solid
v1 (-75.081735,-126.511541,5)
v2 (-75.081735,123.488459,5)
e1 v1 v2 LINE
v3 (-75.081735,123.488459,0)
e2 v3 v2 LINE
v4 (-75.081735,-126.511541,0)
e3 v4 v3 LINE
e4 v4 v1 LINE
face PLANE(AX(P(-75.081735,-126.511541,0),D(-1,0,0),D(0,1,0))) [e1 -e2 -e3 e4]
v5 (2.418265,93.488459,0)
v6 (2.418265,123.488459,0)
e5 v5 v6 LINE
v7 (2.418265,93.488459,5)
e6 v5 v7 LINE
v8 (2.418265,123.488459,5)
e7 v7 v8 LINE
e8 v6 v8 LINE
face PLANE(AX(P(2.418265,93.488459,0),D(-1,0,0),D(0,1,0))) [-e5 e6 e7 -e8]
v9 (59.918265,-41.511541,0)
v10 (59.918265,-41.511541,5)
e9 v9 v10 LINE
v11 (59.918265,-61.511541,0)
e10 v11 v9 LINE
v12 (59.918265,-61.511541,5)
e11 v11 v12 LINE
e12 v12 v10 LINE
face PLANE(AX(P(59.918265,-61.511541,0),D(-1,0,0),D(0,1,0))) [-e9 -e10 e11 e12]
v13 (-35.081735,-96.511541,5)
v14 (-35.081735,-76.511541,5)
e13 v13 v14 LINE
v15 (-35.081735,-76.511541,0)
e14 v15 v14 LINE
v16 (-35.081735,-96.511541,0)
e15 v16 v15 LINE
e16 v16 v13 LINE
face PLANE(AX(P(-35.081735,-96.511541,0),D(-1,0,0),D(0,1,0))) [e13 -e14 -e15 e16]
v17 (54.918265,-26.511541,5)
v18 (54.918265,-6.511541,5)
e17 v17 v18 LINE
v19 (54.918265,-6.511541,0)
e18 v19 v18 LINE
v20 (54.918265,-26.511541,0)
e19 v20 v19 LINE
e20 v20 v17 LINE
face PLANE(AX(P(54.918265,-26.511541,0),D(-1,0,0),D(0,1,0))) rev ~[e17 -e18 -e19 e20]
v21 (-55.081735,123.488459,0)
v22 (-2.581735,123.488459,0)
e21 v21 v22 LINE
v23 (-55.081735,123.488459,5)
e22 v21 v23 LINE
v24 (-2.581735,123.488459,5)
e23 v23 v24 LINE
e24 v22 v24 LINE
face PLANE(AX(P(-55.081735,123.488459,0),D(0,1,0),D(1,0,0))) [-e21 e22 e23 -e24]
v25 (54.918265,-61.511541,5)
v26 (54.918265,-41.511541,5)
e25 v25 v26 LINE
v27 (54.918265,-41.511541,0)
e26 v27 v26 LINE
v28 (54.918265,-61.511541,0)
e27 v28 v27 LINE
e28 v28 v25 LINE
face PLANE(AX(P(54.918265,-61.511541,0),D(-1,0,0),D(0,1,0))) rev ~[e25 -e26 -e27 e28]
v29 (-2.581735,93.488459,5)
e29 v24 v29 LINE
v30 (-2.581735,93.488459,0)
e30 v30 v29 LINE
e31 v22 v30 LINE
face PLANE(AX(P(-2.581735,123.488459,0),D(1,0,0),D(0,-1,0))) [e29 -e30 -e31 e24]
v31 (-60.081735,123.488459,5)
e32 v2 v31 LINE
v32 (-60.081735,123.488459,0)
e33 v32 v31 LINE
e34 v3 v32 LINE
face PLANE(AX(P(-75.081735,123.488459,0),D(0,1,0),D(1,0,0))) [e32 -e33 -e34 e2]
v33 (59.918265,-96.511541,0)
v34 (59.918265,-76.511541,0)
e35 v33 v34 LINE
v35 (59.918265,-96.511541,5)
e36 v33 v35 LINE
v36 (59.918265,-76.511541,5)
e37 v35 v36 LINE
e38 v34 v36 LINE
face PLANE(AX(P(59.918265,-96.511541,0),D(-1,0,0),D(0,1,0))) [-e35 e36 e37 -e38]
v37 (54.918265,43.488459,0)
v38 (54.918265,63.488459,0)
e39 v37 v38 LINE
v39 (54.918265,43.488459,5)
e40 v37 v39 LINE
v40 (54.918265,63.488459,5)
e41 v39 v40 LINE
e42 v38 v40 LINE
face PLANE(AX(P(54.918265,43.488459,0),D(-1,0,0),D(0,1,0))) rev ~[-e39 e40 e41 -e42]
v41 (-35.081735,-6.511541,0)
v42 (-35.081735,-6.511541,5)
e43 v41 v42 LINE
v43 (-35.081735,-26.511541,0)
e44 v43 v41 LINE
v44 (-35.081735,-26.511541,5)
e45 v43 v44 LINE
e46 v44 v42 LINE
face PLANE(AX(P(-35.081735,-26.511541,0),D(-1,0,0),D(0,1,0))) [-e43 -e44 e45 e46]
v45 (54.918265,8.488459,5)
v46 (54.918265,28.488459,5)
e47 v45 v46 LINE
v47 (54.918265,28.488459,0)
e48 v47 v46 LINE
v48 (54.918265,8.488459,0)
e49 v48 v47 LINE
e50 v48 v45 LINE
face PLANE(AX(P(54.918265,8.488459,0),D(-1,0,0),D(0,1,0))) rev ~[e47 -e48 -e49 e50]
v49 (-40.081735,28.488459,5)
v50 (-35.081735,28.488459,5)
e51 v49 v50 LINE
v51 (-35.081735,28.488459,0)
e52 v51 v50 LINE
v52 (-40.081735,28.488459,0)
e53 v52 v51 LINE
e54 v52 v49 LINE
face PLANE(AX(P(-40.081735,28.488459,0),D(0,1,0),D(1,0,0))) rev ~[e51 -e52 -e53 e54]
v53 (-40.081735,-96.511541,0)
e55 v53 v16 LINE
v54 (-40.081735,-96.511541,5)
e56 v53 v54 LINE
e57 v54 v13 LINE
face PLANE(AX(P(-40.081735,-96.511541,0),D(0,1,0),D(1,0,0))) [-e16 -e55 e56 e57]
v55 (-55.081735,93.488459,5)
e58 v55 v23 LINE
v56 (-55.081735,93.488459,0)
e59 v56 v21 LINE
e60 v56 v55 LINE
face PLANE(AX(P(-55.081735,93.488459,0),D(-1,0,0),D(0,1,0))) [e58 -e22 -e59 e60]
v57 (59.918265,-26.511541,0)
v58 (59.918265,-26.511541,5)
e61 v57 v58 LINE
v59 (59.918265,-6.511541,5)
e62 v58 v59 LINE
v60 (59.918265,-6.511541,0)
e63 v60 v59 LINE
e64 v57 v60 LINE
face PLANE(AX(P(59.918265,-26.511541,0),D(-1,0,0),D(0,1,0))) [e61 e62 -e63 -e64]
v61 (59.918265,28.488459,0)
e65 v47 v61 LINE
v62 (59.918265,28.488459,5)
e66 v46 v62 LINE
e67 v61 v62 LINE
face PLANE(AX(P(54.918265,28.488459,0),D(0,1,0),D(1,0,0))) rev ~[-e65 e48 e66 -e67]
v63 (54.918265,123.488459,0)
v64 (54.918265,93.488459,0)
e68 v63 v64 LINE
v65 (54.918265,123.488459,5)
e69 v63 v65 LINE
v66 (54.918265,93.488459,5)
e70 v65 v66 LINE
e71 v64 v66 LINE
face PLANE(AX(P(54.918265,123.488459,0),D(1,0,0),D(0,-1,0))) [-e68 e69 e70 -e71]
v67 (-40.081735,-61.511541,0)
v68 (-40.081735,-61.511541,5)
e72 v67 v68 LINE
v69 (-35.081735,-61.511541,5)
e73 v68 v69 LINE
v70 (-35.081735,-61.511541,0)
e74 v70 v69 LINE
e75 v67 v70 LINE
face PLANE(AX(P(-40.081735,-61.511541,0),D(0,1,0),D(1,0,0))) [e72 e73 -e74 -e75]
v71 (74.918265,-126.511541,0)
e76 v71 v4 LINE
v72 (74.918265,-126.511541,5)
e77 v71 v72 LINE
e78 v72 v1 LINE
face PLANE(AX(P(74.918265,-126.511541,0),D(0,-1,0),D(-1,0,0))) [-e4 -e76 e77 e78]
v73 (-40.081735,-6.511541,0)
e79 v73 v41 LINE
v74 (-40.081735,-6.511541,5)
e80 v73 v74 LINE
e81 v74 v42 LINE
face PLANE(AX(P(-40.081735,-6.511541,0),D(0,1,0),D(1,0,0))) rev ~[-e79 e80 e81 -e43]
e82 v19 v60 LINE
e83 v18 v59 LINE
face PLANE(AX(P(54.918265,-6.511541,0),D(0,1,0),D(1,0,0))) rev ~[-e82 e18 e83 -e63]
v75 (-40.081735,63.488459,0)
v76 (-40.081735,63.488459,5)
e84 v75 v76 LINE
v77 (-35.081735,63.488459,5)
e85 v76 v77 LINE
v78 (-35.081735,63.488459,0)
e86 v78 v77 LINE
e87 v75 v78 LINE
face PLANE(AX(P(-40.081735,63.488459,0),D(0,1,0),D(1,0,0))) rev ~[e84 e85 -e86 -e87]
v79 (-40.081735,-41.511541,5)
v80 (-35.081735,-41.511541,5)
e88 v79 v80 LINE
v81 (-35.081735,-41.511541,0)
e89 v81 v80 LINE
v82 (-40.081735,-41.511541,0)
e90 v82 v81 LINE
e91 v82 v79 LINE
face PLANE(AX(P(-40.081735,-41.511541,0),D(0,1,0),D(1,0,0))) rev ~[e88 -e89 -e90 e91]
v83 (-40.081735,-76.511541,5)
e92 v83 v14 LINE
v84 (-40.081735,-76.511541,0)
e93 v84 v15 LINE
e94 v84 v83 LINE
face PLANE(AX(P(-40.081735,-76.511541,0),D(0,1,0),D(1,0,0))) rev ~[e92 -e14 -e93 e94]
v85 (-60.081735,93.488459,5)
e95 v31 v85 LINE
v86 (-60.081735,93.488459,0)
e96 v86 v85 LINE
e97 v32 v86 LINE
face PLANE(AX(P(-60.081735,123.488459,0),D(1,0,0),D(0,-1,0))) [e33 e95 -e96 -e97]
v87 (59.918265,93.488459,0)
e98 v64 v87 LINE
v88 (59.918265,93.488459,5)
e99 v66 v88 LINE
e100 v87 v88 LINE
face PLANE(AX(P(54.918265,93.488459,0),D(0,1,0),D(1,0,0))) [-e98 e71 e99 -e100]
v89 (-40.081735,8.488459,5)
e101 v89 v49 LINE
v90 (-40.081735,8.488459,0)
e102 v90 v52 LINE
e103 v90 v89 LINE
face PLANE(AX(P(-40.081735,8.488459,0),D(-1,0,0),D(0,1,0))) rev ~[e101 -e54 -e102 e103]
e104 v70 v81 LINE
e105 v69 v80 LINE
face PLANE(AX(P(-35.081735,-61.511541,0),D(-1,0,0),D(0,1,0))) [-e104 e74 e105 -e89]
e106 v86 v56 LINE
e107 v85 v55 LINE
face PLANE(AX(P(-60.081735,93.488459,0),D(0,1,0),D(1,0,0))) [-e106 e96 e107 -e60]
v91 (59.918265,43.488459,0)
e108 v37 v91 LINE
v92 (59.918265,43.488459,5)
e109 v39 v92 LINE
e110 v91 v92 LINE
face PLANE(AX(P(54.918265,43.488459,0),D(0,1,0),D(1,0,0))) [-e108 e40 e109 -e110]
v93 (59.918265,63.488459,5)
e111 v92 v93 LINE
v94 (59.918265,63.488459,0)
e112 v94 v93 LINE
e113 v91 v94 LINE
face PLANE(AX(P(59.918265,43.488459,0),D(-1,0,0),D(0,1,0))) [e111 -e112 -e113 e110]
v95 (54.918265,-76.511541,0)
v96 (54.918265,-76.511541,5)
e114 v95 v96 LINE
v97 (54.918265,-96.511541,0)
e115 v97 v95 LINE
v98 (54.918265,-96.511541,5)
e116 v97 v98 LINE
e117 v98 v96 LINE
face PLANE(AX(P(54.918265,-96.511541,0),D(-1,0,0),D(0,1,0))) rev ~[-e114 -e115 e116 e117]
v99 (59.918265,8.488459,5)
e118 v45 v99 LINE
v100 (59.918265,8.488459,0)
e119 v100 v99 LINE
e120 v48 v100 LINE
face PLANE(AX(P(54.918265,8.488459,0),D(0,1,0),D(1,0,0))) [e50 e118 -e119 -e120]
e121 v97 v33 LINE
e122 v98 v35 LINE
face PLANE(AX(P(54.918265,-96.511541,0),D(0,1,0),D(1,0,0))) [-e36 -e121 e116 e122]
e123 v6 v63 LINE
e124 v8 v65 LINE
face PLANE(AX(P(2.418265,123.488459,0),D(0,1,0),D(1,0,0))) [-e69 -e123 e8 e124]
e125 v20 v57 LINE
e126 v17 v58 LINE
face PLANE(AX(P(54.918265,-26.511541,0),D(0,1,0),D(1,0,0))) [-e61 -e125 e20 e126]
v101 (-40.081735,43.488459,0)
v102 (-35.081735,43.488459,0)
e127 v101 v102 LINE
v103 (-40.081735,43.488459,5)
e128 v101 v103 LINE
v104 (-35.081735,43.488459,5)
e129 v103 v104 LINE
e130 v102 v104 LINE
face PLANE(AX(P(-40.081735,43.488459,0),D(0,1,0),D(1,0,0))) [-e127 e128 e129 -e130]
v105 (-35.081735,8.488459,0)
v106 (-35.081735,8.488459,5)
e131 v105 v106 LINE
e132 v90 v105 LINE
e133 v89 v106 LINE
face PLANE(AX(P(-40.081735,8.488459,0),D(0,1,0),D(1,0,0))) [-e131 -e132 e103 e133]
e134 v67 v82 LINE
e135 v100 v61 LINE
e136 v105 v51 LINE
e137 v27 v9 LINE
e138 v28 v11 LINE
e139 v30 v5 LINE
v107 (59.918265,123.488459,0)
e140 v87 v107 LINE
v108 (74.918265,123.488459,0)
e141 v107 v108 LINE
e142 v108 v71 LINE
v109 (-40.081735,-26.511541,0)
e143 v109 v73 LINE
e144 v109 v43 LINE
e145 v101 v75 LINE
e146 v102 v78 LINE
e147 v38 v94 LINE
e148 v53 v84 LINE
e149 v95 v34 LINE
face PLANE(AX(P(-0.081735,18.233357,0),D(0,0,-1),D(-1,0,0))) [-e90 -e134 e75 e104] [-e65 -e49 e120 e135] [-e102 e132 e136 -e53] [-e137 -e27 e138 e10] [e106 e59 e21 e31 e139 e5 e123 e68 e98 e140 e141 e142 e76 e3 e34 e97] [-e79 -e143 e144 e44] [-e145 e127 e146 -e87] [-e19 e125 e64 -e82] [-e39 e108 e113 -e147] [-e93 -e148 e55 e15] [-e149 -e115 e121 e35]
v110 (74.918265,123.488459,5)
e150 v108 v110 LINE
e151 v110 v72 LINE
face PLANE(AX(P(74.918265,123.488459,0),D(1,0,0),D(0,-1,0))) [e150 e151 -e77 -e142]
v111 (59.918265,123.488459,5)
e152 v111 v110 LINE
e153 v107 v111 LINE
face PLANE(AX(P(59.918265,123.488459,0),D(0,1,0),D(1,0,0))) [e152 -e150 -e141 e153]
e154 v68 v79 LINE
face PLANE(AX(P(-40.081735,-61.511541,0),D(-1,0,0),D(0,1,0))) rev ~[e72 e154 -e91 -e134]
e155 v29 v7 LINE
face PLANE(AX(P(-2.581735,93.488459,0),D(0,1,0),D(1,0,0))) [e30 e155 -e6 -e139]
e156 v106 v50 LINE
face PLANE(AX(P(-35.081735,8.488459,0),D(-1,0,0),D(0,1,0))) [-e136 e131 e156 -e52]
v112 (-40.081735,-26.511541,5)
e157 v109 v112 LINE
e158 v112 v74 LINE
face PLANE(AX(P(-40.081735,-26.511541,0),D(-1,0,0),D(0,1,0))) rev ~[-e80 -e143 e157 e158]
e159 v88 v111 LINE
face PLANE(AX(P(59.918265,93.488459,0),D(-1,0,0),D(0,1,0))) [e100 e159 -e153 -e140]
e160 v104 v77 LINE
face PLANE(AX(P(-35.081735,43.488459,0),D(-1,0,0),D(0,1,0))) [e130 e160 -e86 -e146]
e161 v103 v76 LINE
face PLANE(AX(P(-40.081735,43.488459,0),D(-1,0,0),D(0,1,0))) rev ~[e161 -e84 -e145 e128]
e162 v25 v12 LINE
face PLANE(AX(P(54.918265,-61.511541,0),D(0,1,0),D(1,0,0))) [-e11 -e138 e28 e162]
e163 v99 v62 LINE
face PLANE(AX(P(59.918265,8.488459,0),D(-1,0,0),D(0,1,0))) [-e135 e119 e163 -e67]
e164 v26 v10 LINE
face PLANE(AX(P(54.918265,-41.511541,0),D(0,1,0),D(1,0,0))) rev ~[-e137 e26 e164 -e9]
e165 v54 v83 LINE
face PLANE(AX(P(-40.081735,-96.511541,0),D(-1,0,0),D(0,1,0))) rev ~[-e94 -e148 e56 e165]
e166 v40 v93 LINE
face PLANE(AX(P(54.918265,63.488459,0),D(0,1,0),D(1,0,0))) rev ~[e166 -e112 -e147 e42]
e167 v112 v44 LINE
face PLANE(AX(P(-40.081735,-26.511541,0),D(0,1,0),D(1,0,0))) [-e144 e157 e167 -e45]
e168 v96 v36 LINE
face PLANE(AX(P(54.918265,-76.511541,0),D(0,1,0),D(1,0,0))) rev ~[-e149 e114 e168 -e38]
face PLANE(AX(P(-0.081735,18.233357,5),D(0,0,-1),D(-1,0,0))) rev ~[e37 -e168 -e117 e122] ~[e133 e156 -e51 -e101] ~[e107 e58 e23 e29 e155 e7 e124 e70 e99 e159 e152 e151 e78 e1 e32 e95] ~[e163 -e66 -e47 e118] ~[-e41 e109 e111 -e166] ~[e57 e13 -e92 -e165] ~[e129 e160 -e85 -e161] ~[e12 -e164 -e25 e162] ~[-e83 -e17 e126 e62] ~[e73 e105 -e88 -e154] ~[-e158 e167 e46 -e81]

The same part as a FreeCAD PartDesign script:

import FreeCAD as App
import Part
import Sketcher

V = App.Vector


def add_polygon(sketch, points):
    """Adds a closed chain of lines whose ends are joined by coincident constraints."""
    first, n = sketch.GeometryCount, len(points)
    for a, b in zip(points, points[1:] + points[:1]):
        sketch.addGeometry(Part.LineSegment(App.Vector(*a, 0), App.Vector(*b, 0)), False)
    for i in range(n):
        sketch.addConstraint(Sketcher.Constraint("Coincident", first + i, 2, first + (i + 1) % n, 1))

doc = App.newDocument("Part")
body = doc.addObject("PartDesign::Body", "Body")

sketch1 = body.newObject("Sketcher::SketchObject", "Sketch")
sketch1.AttachmentSupport = (doc.getObject("XY_Plane"), [""])
sketch1.MapMode = "FlatFace"
add_polygon(sketch1, [(75, -127), (75, 123), (60, 123), (60, 93), (55, 93), (55, 123), (2, 123), (2, 93), (-3, 93), (-3, 123), (-55, 123), (-55, 93), (-60, 93), (-60, 123), (-75, 123), (-75, -127)])
add_polygon(sketch1, [(55, -97), (55, -77), (60, -77), (60, -97)])
add_polygon(sketch1, [(55, -62), (55, -42), (60, -42), (60, -62)])
add_polygon(sketch1, [(55, -27), (55, -7), (60, -7), (60, -27)])
add_polygon(sketch1, [(-40, -97), (-40, -77), (-35, -77), (-35, -97)])
add_polygon(sketch1, [(-40, -62), (-40, -42), (-35, -42), (-35, -62)])
add_polygon(sketch1, [(-40, -27), (-40, -7), (-35, -7), (-35, -27)])
add_polygon(sketch1, [(55, 8), (55, 28), (60, 28), (60, 8)])
add_polygon(sketch1, [(55, 43), (55, 63), (60, 63), (60, 43)])
add_polygon(sketch1, [(-40, 8), (-40, 28), (-35, 28), (-35, 8)])
add_polygon(sketch1, [(-40, 43), (-40, 63), (-35, 63), (-35, 43)])
sketch1.addConstraint(Sketcher.Constraint("Vertical", 0))
sketch1.addConstraint(Sketcher.Constraint("Horizontal", 1))
sketch1.addConstraint(Sketcher.Constraint("Vertical", 2))
sketch1.addConstraint(Sketcher.Constraint("Horizontal", 3))
sketch1.addConstraint(Sketcher.Constraint("Vertical", 4))
sketch1.addConstraint(Sketcher.Constraint("Horizontal", 5))
sketch1.addConstraint(Sketcher.Constraint("Vertical", 6))
sketch1.addConstraint(Sketcher.Constraint("Horizontal", 7))
sketch1.addConstraint(Sketcher.Constraint("Vertical", 8))
sketch1.addConstraint(Sketcher.Constraint("Horizontal", 9))
sketch1.addConstraint(Sketcher.Constraint("Vertical", 10))
sketch1.addConstraint(Sketcher.Constraint("Horizontal", 11))
sketch1.addConstraint(Sketcher.Constraint("Vertical", 12))
sketch1.addConstraint(Sketcher.Constraint("Horizontal", 13))
sketch1.addConstraint(Sketcher.Constraint("Vertical", 14))
sketch1.addConstraint(Sketcher.Constraint("Horizontal", 15))
sketch1.addConstraint(Sketcher.Constraint("Vertical", 16))
sketch1.addConstraint(Sketcher.Constraint("Horizontal", 17))
sketch1.addConstraint(Sketcher.Constraint("Vertical", 18))
sketch1.addConstraint(Sketcher.Constraint("Horizontal", 19))
sketch1.addConstraint(Sketcher.Constraint("Vertical", 20))
sketch1.addConstraint(Sketcher.Constraint("Horizontal", 21))
sketch1.addConstraint(Sketcher.Constraint("Vertical", 22))
sketch1.addConstraint(Sketcher.Constraint("Horizontal", 23))
sketch1.addConstraint(Sketcher.Constraint("Vertical", 24))
sketch1.addConstraint(Sketcher.Constraint("Horizontal", 25))
sketch1.addConstraint(Sketcher.Constraint("Vertical", 26))
sketch1.addConstraint(Sketcher.Constraint("Horizontal", 27))
sketch1.addConstraint(Sketcher.Constraint("Vertical", 28))
sketch1.addConstraint(Sketcher.Constraint("Horizontal", 29))
sketch1.addConstraint(Sketcher.Constraint("Vertical", 30))
sketch1.addConstraint(Sketcher.Constraint("Horizontal", 31))
sketch1.addConstraint(Sketcher.Constraint("Vertical", 32))
sketch1.addConstraint(Sketcher.Constraint("Horizontal", 33))
sketch1.addConstraint(Sketcher.Constraint("Vertical", 34))
sketch1.addConstraint(Sketcher.Constraint("Horizontal", 35))
sketch1.addConstraint(Sketcher.Constraint("Vertical", 36))
sketch1.addConstraint(Sketcher.Constraint("Horizontal", 37))
sketch1.addConstraint(Sketcher.Constraint("Vertical", 38))
sketch1.addConstraint(Sketcher.Constraint("Horizontal", 39))
sketch1.addConstraint(Sketcher.Constraint("Vertical", 40))
sketch1.addConstraint(Sketcher.Constraint("Horizontal", 41))
sketch1.addConstraint(Sketcher.Constraint("Vertical", 42))
sketch1.addConstraint(Sketcher.Constraint("Horizontal", 43))
sketch1.addConstraint(Sketcher.Constraint("Vertical", 44))
sketch1.addConstraint(Sketcher.Constraint("Horizontal", 45))
sketch1.addConstraint(Sketcher.Constraint("Vertical", 46))
sketch1.addConstraint(Sketcher.Constraint("Horizontal", 47))
sketch1.addConstraint(Sketcher.Constraint("Vertical", 48))
sketch1.addConstraint(Sketcher.Constraint("Horizontal", 49))
sketch1.addConstraint(Sketcher.Constraint("Vertical", 50))
sketch1.addConstraint(Sketcher.Constraint("Horizontal", 51))
sketch1.addConstraint(Sketcher.Constraint("Vertical", 52))
sketch1.addConstraint(Sketcher.Constraint("Horizontal", 53))
sketch1.addConstraint(Sketcher.Constraint("Vertical", 54))
sketch1.addConstraint(Sketcher.Constraint("Horizontal", 55))
sketch1.addConstraint(Sketcher.Constraint("Horizontal", 1, 2, 4, 2))
sketch1.addConstraint(Sketcher.Constraint("Horizontal", 3, 2, 6, 2))
sketch1.addConstraint(Sketcher.Constraint("Horizontal", 5, 2, 8, 2))
sketch1.addConstraint(Sketcher.Constraint("Horizontal", 7, 2, 10, 2))
sketch1.addConstraint(Sketcher.Constraint("Horizontal", 9, 2, 12, 2))
sketch1.addConstraint(Sketcher.Constraint("Horizontal", 17, 2, 28, 2))
sketch1.addConstraint(Sketcher.Constraint("Horizontal", 19, 2, 30, 2))
sketch1.addConstraint(Sketcher.Constraint("Horizontal", 21, 2, 32, 2))
sketch1.addConstraint(Sketcher.Constraint("Horizontal", 23, 2, 34, 2))
sketch1.addConstraint(Sketcher.Constraint("Horizontal", 25, 2, 36, 2))
sketch1.addConstraint(Sketcher.Constraint("Horizontal", 27, 2, 38, 2))
sketch1.addConstraint(Sketcher.Constraint("Horizontal", 41, 2, 48, 2))
sketch1.addConstraint(Sketcher.Constraint("Horizontal", 43, 2, 50, 2))
sketch1.addConstraint(Sketcher.Constraint("Horizontal", 45, 2, 52, 2))
sketch1.addConstraint(Sketcher.Constraint("Horizontal", 47, 2, 54, 2))
sketch1.addConstraint(Sketcher.Constraint("Vertical", 4, 2, 16, 2))
sketch1.addConstraint(Sketcher.Constraint("Vertical", 2, 2, 17, 2))
sketch1.addConstraint(Sketcher.Constraint("Vertical", 19, 2, 20, 2))
sketch1.addConstraint(Sketcher.Constraint("Vertical", 18, 2, 21, 2))
sketch1.addConstraint(Sketcher.Constraint("Vertical", 23, 2, 24, 2))
sketch1.addConstraint(Sketcher.Constraint("Vertical", 22, 2, 25, 2))
sketch1.addConstraint(Sketcher.Constraint("Vertical", 31, 2, 32, 2))
sketch1.addConstraint(Sketcher.Constraint("Vertical", 30, 2, 33, 2))
sketch1.addConstraint(Sketcher.Constraint("Vertical", 35, 2, 36, 2))
sketch1.addConstraint(Sketcher.Constraint("Vertical", 34, 2, 37, 2))
sketch1.addConstraint(Sketcher.Constraint("Vertical", 27, 2, 40, 2))
sketch1.addConstraint(Sketcher.Constraint("Vertical", 26, 2, 41, 2))
sketch1.addConstraint(Sketcher.Constraint("Vertical", 43, 2, 44, 2))
sketch1.addConstraint(Sketcher.Constraint("Vertical", 42, 2, 45, 2))
sketch1.addConstraint(Sketcher.Constraint("Vertical", 39, 2, 48, 2))
sketch1.addConstraint(Sketcher.Constraint("Vertical", 38, 2, 49, 2))
sketch1.addConstraint(Sketcher.Constraint("Vertical", 51, 2, 52, 2))
sketch1.addConstraint(Sketcher.Constraint("Vertical", 50, 2, 53, 2))
sketch1.addConstraint(Sketcher.Constraint("Equal", 3, 7))
sketch1.addConstraint(Sketcher.Constraint("Equal", 5, 9))
sketch1.addConstraint(Sketcher.Constraint("Equal", 7, 11))
sketch1.addConstraint(Sketcher.Constraint("Equal", 1, 13))
sketch1.addConstraint(Sketcher.Constraint("Equal", 27, 29))
sketch1.addConstraint(Sketcher.Constraint("Equal", 18, 20))
sketch1.addConstraint(Sketcher.Constraint("Equal", 22, 24))
sketch1.addConstraint(Sketcher.Constraint("Equal", 38, 40))
sketch1.addConstraint(Sketcher.Constraint("Equal", 42, 44))
sketch1.addConstraint(Sketcher.Constraint("DistanceX", 1, 2, 1, 1, 15.0))
sketch1.addConstraint(Sketcher.Constraint("DistanceX", 3, 2, 3, 1, 5.0))
sketch1.addConstraint(Sketcher.Constraint("DistanceX", 15, 1, 15, 2, 150.0))
sketch1.addConstraint(Sketcher.Constraint("DistanceY", 0, 1, 0, 2, 250.0))
sketch1.addConstraint(Sketcher.Constraint("DistanceY", 2, 2, 2, 1, 30.0))
sketch1.addConstraint(Sketcher.Constraint("DistanceY", 16, 1, 16, 2, 20.0))
sketch1.addConstraint(Sketcher.Constraint("DistanceY", 15, 2, 16, 2, 50.0))
sketch1.addConstraint(Sketcher.Constraint("DistanceY", 16, 2, 20, 2, 35.0))
sketch1.addConstraint(Sketcher.Constraint("DistanceY", 20, 2, 24, 2, 35.0))
sketch1.addConstraint(Sketcher.Constraint("DistanceX", 14, 2, 28, 2, 35.0))
sketch1.addConstraint(Sketcher.Constraint("DistanceY", 24, 2, 40, 2, 35.0))
sketch1.addConstraint(Sketcher.Constraint("DistanceY", 44, 2, 3, 2, 30.0))
sketch1.addConstraint(Sketcher.Constraint("DistanceY", -1, 1, 0, 2, 123.488459))
sketch1.addConstraint(Sketcher.Constraint("DistanceX", -1, 1, 0, 2, 74.918265))
pad1 = body.newObject("PartDesign::Pad", "Pad")
pad1.Profile = sketch1
pad1.Length = 5

doc.recompute()
